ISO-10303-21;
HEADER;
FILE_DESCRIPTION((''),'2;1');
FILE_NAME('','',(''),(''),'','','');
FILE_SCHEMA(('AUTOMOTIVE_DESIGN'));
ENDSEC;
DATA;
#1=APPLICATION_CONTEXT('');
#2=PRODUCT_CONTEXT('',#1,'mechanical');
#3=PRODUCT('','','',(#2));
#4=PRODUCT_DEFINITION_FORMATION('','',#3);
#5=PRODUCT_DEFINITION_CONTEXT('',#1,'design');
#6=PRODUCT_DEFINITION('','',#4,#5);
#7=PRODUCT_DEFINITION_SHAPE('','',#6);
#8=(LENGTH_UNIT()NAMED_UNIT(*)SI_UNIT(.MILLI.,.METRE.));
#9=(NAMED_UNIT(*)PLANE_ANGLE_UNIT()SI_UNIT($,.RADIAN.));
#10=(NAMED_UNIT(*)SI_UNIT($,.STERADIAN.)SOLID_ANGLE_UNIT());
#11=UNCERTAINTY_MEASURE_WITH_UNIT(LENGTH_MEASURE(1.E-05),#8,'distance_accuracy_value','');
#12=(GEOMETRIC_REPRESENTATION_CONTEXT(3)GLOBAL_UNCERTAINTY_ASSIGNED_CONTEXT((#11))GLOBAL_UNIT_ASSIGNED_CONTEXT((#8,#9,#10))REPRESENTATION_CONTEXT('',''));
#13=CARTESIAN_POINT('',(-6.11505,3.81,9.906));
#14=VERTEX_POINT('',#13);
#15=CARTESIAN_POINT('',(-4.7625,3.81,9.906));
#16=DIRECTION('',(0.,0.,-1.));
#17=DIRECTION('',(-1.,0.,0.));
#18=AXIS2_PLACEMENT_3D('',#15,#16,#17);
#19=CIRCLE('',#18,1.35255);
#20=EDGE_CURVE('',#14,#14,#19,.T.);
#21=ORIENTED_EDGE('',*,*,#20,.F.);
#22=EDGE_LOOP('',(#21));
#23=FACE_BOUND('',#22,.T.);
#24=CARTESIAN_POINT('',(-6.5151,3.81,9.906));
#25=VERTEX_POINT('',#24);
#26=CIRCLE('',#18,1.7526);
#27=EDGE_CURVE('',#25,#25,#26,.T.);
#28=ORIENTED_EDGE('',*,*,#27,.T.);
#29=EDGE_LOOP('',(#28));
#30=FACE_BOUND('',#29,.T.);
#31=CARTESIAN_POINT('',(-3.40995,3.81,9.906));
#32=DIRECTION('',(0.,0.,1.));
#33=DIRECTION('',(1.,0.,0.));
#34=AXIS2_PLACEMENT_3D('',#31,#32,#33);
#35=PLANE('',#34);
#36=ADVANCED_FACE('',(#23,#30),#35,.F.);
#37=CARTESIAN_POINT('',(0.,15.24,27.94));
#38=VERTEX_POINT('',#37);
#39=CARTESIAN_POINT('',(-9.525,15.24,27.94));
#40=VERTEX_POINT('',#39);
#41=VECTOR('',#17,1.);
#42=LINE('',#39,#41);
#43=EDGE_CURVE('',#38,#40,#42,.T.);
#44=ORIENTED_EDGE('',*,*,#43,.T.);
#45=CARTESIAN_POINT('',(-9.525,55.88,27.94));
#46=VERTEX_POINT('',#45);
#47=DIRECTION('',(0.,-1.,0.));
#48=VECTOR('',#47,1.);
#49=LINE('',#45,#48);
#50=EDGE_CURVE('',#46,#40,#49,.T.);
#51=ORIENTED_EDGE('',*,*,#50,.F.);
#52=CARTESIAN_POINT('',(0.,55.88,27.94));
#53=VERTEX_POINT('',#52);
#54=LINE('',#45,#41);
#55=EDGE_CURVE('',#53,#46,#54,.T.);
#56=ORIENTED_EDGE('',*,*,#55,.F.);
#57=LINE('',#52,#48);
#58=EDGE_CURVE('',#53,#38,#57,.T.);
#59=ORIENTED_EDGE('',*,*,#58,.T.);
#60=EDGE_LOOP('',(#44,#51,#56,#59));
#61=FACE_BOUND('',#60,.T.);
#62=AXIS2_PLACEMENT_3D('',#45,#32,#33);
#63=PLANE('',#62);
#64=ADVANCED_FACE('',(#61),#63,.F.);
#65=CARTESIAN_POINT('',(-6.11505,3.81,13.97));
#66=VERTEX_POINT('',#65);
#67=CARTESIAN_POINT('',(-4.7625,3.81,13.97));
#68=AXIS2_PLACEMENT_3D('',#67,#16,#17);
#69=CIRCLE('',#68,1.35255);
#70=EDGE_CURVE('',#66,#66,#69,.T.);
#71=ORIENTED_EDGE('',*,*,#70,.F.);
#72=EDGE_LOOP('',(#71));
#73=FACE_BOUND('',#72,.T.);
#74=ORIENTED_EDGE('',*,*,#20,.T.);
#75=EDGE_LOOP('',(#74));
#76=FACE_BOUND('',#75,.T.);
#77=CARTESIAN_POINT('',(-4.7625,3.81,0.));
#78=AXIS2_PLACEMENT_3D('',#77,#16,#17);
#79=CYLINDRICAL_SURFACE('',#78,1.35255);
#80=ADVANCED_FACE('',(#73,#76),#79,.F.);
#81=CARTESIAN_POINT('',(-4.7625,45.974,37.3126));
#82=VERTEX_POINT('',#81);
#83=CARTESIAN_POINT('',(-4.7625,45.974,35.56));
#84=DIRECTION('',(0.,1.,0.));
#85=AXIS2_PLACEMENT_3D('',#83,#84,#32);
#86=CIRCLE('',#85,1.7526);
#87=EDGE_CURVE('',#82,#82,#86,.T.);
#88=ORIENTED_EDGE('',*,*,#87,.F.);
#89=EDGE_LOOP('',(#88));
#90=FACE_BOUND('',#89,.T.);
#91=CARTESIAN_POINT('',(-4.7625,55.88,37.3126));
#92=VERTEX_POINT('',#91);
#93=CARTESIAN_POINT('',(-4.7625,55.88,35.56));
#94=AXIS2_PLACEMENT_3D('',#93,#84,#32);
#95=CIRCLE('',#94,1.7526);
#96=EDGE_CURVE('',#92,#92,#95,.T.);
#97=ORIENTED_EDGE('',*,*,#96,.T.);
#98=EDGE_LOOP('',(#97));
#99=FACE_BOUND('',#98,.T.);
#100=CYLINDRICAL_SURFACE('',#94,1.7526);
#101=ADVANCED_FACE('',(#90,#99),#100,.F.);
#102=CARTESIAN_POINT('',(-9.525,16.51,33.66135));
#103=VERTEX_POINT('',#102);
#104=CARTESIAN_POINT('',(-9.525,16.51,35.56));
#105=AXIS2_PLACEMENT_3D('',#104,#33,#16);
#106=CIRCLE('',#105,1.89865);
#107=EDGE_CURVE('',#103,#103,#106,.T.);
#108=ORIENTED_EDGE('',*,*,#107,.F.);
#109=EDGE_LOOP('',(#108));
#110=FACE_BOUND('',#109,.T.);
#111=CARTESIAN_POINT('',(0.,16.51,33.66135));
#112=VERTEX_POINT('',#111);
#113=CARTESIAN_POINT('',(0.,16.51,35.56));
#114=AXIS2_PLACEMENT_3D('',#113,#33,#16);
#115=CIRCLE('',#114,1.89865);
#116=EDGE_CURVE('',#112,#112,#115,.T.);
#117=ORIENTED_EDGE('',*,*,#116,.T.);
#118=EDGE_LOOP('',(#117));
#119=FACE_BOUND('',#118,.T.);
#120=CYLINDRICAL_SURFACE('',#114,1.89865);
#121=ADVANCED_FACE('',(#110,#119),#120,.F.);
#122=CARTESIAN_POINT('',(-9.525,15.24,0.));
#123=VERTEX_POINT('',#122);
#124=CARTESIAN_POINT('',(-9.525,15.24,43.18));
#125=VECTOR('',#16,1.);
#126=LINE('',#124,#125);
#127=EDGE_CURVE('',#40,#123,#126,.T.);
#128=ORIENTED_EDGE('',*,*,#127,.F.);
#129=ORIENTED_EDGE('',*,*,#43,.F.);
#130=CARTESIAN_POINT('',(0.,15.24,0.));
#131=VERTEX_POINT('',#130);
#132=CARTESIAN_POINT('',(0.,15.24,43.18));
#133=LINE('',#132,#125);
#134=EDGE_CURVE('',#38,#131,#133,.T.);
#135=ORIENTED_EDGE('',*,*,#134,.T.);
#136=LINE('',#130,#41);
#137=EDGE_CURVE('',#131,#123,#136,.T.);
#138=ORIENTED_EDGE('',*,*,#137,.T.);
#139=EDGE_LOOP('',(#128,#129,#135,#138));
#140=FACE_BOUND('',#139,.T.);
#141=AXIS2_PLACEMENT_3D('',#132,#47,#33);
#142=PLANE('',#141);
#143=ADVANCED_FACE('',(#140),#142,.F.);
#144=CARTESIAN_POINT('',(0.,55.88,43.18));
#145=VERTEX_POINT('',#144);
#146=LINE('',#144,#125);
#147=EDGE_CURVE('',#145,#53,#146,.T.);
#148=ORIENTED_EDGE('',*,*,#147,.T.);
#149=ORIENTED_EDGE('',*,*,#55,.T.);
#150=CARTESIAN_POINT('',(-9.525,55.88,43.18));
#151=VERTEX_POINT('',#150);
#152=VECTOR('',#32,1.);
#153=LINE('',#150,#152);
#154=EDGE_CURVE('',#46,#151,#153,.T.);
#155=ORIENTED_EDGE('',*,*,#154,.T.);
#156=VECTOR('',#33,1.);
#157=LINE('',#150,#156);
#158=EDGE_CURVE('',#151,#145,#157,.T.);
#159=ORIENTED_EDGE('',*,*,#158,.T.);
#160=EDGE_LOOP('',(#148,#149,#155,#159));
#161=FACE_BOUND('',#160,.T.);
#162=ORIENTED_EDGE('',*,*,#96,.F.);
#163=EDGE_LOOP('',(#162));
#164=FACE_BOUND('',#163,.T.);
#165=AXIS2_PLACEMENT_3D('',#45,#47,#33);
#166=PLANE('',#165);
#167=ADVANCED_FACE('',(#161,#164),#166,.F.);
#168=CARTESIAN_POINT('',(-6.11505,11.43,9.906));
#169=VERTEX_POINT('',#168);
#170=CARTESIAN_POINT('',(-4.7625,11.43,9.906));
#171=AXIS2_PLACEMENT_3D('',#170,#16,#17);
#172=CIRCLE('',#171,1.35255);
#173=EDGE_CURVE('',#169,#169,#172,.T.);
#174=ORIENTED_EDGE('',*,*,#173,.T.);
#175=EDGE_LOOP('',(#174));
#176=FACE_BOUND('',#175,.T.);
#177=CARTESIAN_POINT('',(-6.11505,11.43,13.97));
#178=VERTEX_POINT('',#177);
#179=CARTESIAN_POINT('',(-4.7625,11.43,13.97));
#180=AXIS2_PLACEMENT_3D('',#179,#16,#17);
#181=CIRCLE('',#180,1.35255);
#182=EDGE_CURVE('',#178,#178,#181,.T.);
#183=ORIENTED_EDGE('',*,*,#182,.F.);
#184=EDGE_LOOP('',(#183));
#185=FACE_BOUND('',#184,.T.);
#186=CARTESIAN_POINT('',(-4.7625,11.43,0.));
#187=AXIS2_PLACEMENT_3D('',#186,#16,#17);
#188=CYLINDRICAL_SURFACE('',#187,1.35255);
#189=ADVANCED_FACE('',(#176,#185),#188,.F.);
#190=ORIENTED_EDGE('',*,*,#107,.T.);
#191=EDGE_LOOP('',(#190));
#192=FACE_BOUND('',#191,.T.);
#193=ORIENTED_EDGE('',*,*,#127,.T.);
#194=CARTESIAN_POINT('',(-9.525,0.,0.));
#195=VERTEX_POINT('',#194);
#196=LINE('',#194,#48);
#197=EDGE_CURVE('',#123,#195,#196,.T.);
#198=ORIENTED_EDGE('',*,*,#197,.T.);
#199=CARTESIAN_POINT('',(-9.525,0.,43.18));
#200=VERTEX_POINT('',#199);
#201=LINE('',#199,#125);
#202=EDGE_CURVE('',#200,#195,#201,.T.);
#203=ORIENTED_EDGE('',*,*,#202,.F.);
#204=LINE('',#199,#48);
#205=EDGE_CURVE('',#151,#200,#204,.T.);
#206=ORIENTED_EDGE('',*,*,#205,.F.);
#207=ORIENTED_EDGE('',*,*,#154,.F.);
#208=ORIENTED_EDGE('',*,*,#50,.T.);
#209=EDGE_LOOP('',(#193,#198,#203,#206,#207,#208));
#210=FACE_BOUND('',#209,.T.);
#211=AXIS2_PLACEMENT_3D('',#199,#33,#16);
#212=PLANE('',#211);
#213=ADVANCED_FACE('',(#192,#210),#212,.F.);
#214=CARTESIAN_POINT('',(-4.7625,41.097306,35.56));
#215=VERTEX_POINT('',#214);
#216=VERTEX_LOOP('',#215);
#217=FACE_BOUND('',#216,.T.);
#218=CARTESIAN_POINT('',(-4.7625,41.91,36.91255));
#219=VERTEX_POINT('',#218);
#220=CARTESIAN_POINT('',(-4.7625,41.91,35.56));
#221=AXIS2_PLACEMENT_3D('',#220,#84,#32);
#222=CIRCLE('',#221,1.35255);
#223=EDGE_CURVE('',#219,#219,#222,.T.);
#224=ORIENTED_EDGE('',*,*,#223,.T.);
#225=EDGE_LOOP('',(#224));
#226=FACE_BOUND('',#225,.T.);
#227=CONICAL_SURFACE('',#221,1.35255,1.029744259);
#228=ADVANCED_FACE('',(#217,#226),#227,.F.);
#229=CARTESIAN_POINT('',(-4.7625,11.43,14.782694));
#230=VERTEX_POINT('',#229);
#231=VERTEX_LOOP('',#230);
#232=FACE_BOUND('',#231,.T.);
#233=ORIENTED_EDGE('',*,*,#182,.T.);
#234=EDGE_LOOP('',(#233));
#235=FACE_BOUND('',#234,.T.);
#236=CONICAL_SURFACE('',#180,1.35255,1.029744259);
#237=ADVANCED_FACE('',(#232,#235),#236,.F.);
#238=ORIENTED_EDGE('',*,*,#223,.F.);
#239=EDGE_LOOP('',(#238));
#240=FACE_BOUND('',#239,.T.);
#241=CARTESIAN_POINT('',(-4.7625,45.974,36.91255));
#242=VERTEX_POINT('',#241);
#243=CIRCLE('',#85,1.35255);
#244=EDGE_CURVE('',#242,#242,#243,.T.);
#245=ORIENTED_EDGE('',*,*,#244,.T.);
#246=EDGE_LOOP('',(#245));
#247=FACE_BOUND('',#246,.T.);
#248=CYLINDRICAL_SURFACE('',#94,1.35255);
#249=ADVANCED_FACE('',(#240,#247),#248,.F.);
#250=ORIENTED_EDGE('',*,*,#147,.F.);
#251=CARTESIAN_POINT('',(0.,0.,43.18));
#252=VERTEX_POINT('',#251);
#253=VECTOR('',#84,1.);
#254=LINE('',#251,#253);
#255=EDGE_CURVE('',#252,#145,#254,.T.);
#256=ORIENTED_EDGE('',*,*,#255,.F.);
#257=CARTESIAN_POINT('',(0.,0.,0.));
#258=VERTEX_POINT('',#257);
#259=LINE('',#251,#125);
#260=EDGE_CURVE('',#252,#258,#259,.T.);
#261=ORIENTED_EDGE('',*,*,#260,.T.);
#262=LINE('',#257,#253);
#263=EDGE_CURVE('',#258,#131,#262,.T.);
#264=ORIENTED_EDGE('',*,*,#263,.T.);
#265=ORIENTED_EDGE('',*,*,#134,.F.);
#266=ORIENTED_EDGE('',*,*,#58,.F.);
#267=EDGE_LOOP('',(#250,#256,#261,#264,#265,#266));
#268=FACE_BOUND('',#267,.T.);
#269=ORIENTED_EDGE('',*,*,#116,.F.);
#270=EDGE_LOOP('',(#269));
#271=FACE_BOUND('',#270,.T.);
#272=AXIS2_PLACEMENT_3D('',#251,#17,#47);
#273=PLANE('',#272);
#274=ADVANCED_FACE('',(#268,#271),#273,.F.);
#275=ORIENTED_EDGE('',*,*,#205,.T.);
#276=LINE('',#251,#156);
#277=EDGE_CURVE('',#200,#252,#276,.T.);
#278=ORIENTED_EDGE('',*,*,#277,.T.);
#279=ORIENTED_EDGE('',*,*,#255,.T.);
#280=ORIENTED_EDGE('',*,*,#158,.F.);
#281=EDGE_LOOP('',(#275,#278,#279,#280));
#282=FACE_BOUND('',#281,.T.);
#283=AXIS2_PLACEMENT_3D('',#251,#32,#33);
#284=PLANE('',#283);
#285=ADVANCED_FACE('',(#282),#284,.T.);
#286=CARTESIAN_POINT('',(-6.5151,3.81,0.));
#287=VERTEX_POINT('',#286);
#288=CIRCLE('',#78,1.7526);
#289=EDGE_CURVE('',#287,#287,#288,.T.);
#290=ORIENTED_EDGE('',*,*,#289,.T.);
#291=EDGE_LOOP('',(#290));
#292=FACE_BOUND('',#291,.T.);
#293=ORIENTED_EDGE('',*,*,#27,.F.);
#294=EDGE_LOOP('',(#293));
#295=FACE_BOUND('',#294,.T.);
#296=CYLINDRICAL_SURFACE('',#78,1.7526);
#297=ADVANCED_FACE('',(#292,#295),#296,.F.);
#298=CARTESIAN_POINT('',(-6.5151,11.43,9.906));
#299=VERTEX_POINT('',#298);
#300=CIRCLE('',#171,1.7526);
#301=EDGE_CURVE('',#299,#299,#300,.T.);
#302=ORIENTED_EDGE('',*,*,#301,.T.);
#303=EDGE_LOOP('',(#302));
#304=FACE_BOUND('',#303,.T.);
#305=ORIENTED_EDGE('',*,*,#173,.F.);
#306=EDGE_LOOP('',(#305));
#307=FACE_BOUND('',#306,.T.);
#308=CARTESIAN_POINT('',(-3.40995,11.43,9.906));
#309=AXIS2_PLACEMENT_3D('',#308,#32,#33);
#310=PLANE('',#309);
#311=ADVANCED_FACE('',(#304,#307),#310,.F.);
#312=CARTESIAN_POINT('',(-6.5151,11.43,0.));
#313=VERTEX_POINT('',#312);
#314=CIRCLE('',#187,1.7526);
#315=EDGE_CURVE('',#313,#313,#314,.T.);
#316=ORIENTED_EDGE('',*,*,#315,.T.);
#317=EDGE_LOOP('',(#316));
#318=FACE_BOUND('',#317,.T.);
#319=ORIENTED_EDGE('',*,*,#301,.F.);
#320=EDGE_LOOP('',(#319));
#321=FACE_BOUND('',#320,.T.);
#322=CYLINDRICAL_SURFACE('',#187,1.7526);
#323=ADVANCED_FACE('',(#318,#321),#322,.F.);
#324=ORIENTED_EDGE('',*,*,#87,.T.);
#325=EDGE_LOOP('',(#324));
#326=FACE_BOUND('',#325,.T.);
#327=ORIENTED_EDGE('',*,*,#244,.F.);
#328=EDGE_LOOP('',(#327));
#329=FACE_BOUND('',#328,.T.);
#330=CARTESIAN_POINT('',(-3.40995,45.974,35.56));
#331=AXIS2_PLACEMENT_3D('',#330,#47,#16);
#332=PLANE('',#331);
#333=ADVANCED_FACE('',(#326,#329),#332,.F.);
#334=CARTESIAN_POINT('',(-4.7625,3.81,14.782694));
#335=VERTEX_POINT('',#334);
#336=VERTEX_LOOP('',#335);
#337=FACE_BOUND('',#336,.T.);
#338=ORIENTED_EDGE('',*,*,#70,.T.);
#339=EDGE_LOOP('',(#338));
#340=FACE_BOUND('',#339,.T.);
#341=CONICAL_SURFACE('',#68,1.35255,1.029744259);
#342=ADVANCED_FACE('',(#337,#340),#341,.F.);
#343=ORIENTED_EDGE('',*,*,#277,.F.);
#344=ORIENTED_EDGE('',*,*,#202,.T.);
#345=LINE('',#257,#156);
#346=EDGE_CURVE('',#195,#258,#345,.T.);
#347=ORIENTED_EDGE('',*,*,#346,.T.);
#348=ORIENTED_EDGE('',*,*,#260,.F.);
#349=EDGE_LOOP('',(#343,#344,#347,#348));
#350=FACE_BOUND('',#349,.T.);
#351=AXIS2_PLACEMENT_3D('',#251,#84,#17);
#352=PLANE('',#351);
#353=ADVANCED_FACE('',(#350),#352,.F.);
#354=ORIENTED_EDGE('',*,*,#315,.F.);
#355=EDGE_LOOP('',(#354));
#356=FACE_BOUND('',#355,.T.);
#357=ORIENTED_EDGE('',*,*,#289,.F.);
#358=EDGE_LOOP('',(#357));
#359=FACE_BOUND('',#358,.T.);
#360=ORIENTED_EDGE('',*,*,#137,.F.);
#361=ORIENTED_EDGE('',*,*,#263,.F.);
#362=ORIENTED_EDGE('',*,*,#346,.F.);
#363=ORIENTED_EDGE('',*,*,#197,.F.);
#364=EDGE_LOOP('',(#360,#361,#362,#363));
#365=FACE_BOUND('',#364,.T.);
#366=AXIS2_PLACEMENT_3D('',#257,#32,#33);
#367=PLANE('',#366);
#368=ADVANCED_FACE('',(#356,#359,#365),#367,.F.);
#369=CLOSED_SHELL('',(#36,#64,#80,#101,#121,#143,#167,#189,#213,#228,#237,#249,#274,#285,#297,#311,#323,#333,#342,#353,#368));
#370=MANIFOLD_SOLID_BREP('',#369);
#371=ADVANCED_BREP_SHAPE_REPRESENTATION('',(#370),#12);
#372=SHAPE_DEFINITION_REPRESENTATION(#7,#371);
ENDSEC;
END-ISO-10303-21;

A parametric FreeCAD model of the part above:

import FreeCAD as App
import Part
import Sketcher
from FreeCAD import Vector
Q = App.Units.Quantity


def add_polygon(sketch, points):
    """Adds a closed chain of lines whose ends are joined by coincident constraints."""
    first, n = sketch.GeometryCount, len(points)
    for a, b in zip(points, points[1:] + points[:1]):
        sketch.addGeometry(Part.LineSegment(App.Vector(*a, 0), App.Vector(*b, 0)), False)
    for i in range(n):
        sketch.addConstraint(Sketcher.Constraint("Coincident", first + i, 2, first + (i + 1) % n, 1))

doc = App.newDocument("Part")
body = doc.addObject("PartDesign::Body", "Body")

# Sketch on XY plane
sketch1 = doc.addObject("Sketcher::SketchObject", "Sketch")
body.addObject(sketch1)
sketch1.AttachmentSupport = (doc.XY_Plane, [""])
sketch1.MapMode = "FlatFace"
add_polygon(sketch1, [(-10, 15), (-10, 0), (0, 0), (0, 15)])  # lines 0-3
sketch1.addConstraint([
    Sketcher.Constraint("Vertical", 0),
    Sketcher.Constraint("Horizontal", 1),
    Sketcher.Constraint("Vertical", 2),
    Sketcher.Constraint("Horizontal", 3),
    Sketcher.Constraint("Coincident", 1, 2, -1, 1),
    Sketcher.Constraint("DistanceY", 0, 2, 0, 1, Q("0.6 in")),
    Sketcher.Constraint("DistanceX", 1, 1, 1, 2, Q("0.375 in")),
])
pad1 = doc.addObject("PartDesign::Pad", "Pad")
body.addObject(pad1)
pad1.Profile = sketch1
pad1.Length = Q("1.7 in")

# Sketch on XZ plane
sketch2 = doc.addObject("Sketcher::SketchObject", "Sketch001")
body.addObject(sketch2)
sketch2.AttachmentSupport = (doc.XZ_Plane, [""])
sketch2.MapMode = "FlatFace"
sketch2.AttachmentOffset = App.Placement(Vector(0, 0, -0.6 * 25.4), App.Rotation())
add_polygon(sketch2, [(0, 43), (0, 28), (-10, 28), (-10, 43)])  # lines 0-3
sketch2.addConstraint([
    Sketcher.Constraint("Vertical", 0),
    Sketcher.Constraint("Horizontal", 1),
    Sketcher.Constraint("Vertical", 2),
    Sketcher.Constraint("Horizontal", 3),
    Sketcher.Constraint("PointOnObject", 0, 2, -2),
    Sketcher.Constraint("DistanceY", 0, 2, 0, 1, Q("0.6 in")),
    Sketcher.Constraint("DistanceY", -1, 1, 0, 2, Q("1.1 in")),
    Sketcher.Constraint("DistanceX", 1, 2, 1, 1, Q("0.375 in")),
])
pad2 = doc.addObject("PartDesign::Pad", "Pad001")
body.addObject(pad2)
pad2.Profile = sketch2
pad2.Length = Q("1.6 in")
pad2.Reversed = True

# Sketch on XY plane
sketch3 = doc.addObject("Sketcher::SketchObject", "Sketch002")
body.addObject(sketch3)
sketch3.AttachmentSupport = (doc.XY_Plane, [""])
sketch3.MapMode = "FlatFace"
sketch3.addGeometry([
    Part.Circle(Vector(-4.8, 11.4, 0), Vector(0, 0, 1), 1.4),
    Part.Circle(Vector(-4.8, 3.8, 0), Vector(0, 0, 1), 1.4),
    Part.Circle(Vector(-19.8, 16.1, 0), Vector(0, 0, 1), 1.4),
], False)
sketch3.addConstraint([
    Sketcher.Constraint("Equal", 0, 1),
    Sketcher.Constraint("Equal", 1, 2),
    Sketcher.Constraint("Vertical", 0, 3, 1, 3),
    Sketcher.Constraint("Diameter", 0, Q("0.1065 in")),
    Sketcher.Constraint("DistanceY", 1, 3, 0, 3, Q("0.3 in")),
    Sketcher.Constraint("DistanceY", -1, 1, 0, 3, Q("0.45 in")),
    Sketcher.Constraint("DistanceX", 0, 3, -1, 1, Q("0.1875 in")),
    Sketcher.Constraint("DistanceX", 2, 3, -1, 1, Q("19.766462 mm")),
    Sketcher.Constraint("DistanceY", -1, 1, 2, 3, Q("16.113879 mm")),
])
doc.recompute()
hole = doc.addObject("PartDesign::Hole", "Hole")
body.addObject(hole)
hole.Profile = sketch3
hole.ThreadType = "None"
hole.Diameter = Q("0.1065 in")
hole.DepthType = "Dimension"
hole.Depth = Q("0.55 in")
hole.DrillPoint = "Angled"
hole.DrillPointAngle = 118
hole.HoleCutType = "Counterbore"
hole.HoleCutDiameter = Q("0.138 in")
hole.HoleCutDepth = Q("0.39 in")
hole.Reversed = True

# Sketch on YZ plane
sketch4 = doc.addObject("Sketcher::SketchObject", "Sketch003")
body.addObject(sketch4)
sketch4.AttachmentSupport = (doc.YZ_Plane, [""])
sketch4.MapMode = "FlatFace"
sketch4.addGeometry(Part.Circle(Vector(16.5, 35.6, 0), Vector(0, 0, 1), 1.9), False)
sketch4.addConstraint([
    Sketcher.Constraint("Diameter", 0, Q("0.1495 in")),
    Sketcher.Constraint("DistanceY", -1, 1, 0, 3, Q("1.4 in")),
    Sketcher.Constraint("DistanceX", -1, 1, 0, 3, Q("0.65 in")),
])
doc.recompute()
hole2 = doc.addObject("PartDesign::Hole", "Hole001")
body.addObject(hole2)
hole2.Profile = sketch4
hole2.ThreadType = "None"
hole2.Diameter = Q("0.1495 in")
hole2.DepthType = "Dimension"
hole2.Depth = Q("0.39 in")
hole2.DrillPoint = "Angled"
hole2.DrillPointAngle = 118

# Sketch on XZ plane
sketch5 = doc.addObject("Sketcher::SketchObject", "Sketch004")
body.addObject(sketch5)
sketch5.AttachmentSupport = (doc.XZ_Plane, [""])
sketch5.MapMode = "FlatFace"
sketch5.AttachmentOffset = App.Placement(Vector(0, 0, -2.2 * 25.4), App.Rotation())
sketch5.addGeometry(Part.Circle(Vector(-4.8, 35.6, 0), Vector(0, 0, 1), 1.4), False)
sketch5.addConstraint([
    Sketcher.Constraint("Diameter", 0, Q("0.1065 in")),
    Sketcher.Constraint("DistanceY", -1, 1, 0, 3, Q("1.4 in")),
    Sketcher.Constraint("DistanceX", 0, 3, -1, 1, Q("0.1875 in")),
])
doc.recompute()
hole3 = doc.addObject("PartDesign::Hole", "Hole002")
body.addObject(hole3)
hole3.Profile = sketch5
hole3.ThreadType = "None"
hole3.Diameter = Q("0.1065 in")
hole3.DepthType = "Dimension"
hole3.Depth = Q("0.55 in")
hole3.DrillPoint = "Angled"
hole3.DrillPointAngle = 118
hole3.HoleCutType = "Counterbore"
hole3.HoleCutDiameter = Q("0.138 in")
hole3.HoleCutDepth = Q("0.39 in")
hole3.Reversed = True

doc.recompute()
